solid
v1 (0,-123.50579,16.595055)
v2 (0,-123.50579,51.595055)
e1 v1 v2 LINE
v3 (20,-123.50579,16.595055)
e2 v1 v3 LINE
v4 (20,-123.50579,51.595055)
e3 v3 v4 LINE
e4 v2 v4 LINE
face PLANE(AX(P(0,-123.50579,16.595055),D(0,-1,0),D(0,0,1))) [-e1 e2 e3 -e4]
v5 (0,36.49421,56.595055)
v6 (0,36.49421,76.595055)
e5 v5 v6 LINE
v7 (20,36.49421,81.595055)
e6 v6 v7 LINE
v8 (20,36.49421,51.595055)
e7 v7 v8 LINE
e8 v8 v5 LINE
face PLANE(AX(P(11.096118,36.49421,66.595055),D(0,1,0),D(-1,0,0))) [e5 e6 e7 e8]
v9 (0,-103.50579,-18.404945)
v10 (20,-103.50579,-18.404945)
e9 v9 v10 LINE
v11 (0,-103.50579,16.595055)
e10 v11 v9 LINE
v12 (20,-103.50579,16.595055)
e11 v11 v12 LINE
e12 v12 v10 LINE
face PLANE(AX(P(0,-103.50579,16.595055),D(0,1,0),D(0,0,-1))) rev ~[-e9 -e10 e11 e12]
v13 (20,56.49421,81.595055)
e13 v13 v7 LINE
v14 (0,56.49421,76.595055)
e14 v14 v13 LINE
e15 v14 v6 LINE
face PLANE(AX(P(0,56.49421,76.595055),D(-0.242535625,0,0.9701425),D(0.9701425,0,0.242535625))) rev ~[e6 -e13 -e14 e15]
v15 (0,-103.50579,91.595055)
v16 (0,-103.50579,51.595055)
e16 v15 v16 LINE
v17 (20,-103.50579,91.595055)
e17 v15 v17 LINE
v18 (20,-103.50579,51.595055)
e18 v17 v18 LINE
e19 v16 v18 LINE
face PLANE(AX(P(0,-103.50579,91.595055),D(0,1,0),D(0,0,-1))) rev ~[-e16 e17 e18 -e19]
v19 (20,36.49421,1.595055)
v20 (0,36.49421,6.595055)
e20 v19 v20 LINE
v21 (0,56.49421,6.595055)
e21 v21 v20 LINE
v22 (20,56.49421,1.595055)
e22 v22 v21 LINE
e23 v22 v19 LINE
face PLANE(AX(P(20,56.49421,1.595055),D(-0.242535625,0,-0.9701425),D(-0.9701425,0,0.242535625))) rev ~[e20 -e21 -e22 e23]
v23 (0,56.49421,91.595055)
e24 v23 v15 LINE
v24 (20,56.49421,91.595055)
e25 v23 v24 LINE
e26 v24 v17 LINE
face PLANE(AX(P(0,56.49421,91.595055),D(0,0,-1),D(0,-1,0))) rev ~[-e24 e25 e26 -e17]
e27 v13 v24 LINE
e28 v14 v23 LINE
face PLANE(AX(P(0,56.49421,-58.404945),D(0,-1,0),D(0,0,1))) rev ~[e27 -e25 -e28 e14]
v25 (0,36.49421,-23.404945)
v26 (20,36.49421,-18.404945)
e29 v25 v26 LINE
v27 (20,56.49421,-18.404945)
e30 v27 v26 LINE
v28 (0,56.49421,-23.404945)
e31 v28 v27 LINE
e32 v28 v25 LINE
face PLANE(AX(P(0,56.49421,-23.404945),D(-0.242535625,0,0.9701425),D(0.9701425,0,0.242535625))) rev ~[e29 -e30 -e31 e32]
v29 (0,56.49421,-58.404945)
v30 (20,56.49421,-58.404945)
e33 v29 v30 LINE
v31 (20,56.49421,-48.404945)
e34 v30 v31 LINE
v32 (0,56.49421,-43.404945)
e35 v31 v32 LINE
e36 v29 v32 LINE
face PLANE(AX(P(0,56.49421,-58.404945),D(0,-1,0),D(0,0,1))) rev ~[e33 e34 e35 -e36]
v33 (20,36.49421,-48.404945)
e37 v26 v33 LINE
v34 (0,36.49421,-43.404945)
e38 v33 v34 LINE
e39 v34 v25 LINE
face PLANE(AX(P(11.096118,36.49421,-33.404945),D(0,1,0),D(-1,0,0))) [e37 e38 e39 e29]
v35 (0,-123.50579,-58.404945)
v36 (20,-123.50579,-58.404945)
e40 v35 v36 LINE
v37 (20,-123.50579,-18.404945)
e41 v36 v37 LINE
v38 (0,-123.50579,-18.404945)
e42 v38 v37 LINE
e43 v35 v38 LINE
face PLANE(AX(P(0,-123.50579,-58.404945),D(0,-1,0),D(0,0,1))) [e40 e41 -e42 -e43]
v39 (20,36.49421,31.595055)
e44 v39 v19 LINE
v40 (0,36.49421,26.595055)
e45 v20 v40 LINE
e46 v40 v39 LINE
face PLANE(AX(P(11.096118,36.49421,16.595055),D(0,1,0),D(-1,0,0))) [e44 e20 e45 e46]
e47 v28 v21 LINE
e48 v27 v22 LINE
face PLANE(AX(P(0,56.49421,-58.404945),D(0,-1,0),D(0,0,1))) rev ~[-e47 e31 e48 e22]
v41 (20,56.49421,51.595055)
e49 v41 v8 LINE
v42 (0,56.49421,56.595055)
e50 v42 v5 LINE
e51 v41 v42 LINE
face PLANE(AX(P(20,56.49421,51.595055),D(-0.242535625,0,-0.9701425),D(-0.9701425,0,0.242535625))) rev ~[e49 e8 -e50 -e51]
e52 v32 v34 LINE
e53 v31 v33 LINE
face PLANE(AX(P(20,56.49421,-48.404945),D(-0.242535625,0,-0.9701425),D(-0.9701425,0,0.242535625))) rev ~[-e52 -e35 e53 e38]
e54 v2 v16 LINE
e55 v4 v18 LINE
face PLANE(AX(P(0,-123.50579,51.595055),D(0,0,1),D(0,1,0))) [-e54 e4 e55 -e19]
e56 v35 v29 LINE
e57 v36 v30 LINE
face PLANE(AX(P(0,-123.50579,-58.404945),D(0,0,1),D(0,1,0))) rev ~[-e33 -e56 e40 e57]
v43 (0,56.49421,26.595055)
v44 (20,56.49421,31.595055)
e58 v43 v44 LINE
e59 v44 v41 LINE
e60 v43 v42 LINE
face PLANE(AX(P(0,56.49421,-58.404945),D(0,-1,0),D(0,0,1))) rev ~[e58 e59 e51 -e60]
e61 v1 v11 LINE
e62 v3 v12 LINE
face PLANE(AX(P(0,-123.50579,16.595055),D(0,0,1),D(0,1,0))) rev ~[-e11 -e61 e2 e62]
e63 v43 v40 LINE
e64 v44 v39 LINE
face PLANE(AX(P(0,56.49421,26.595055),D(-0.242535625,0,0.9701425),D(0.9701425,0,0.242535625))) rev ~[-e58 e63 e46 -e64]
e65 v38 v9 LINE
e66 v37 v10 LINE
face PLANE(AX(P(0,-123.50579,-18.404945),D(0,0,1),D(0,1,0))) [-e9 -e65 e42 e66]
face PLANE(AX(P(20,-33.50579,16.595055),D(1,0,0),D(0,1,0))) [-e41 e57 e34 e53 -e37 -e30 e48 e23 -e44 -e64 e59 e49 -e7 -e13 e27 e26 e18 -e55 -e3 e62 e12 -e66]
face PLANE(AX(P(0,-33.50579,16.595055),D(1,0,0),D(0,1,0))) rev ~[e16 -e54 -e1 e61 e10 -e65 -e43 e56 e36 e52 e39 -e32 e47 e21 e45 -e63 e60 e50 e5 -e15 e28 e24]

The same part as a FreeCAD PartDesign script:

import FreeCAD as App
import Part
import Sketcher

V = App.Vector
Q = App.Units.Quantity

doc = App.newDocument("Part")
body = doc.addObject("PartDesign::Body", "Body")

sketch1 = doc.addObject("Sketcher::SketchObject", "Sketch")
body.addObject(sketch1)
sketch1.AttachmentSupport = (doc.YZ_Plane, [""])
sketch1.MapMode = "FlatFace"
sketch1.addGeometry([
    Part.LineSegment(V(-104, 92, 0), V(-104, 52, 0)),
    Part.LineSegment(V(-104, 52, 0), V(-124, 52, 0)),
    Part.LineSegment(V(-124, 52, 0), V(-124, 17, 0)),
    Part.LineSegment(V(-124, 17, 0), V(-104, 17, 0)),
    Part.LineSegment(V(-104, 17, 0), V(-104, -18, 0)),
    Part.LineSegment(V(-104, -18, 0), V(-124, -18, 0)),
    Part.LineSegment(V(-124, -18, 0), V(-124, -58, 0)),
    Part.LineSegment(V(-124, -58, 0), V(56, -58, 0)),
    Part.LineSegment(V(56, -58, 0), V(56, 92, 0)),
    Part.LineSegment(V(56, 92, 0), V(-104, 92, 0)),
], False)
sketch1.addConstraint([
    Sketcher.Constraint("Coincident", 0, 2, 1, 1),
    Sketcher.Constraint("Coincident", 1, 2, 2, 1),
    Sketcher.Constraint("Coincident", 2, 2, 3, 1),
    Sketcher.Constraint("Coincident", 3, 2, 4, 1),
    Sketcher.Constraint("Coincident", 4, 2, 5, 1),
    Sketcher.Constraint("Coincident", 5, 2, 6, 1),
    Sketcher.Constraint("Coincident", 6, 2, 7, 1),
    Sketcher.Constraint("Coincident", 7, 2, 8, 1),
    Sketcher.Constraint("Coincident", 8, 2, 9, 1),
    Sketcher.Constraint("Coincident", 9, 2, 0, 1),
    Sketcher.Constraint("Vertical", 0),
    Sketcher.Constraint("Horizontal", 1),
    Sketcher.Constraint("Vertical", 2),
    Sketcher.Constraint("Horizontal", 3),
    Sketcher.Constraint("Vertical", 4),
    Sketcher.Constraint("Horizontal", 5),
    Sketcher.Constraint("Vertical", 6),
    Sketcher.Constraint("Horizontal", 7),
    Sketcher.Constraint("Vertical", 8),
    Sketcher.Constraint("Horizontal", 9),
    Sketcher.Constraint("Vertical", 0, 2, 3, 2),
    Sketcher.Constraint("Vertical", 2, 2, 5, 2),
    Sketcher.Constraint("Equal", 2, 4),
    Sketcher.Constraint("Equal", 0, 6),
    Sketcher.Constraint("DistanceX", 1, 2, 1, 1, Q("20 mm")),
    Sketcher.Constraint("DistanceX", 7, 1, 7, 2, Q("180 mm")),
    Sketcher.Constraint("DistanceY", 0, 2, 0, 1, Q("40 mm")),
    Sketcher.Constraint("DistanceY", 2, 2, 2, 1, Q("35 mm")),
    Sketcher.Constraint("DistanceX", 0, 2, -1, 1, Q("103.50579 mm")),
    Sketcher.Constraint("DistanceY", -1, 1, 0, 2, Q("51.595055 mm")),
])
pad1 = doc.addObject("PartDesign::Pad", "Pad")
body.addObject(pad1)
pad1.Profile = sketch1
pad1.Length = 20

sketch2 = doc.addObject("Sketcher::SketchObject", "Sketch001")
body.addObject(sketch2)
sketch2.AttachmentSupport = (doc.XZ_Plane, [""])
sketch2.MapMode = "FlatFace"
sketch2.AttachmentOffset = App.Placement(V(0, 0, -56.49421), App.Rotation())
sketch2.addGeometry([
    Part.LineSegment(V(20, 52, 0), V(0, 57, 0)),
    Part.LineSegment(V(0, 57, 0), V(0, 77, 0)),
    Part.LineSegment(V(0, 77, 0), V(20, 82, 0)),
    Part.LineSegment(V(20, 82, 0), V(20, 52, 0)),
    Part.LineSegment(V(0, 7, 0), V(0, 27, 0)),
    Part.LineSegment(V(0, 27, 0), V(20, 32, 0)),
    Part.LineSegment(V(20, 32, 0), V(20, 2, 0)),
    Part.LineSegment(V(20, 2, 0), V(0, 7, 0)),
    Part.LineSegment(V(0, -43, 0), V(0, -23, 0)),
    Part.LineSegment(V(0, -23, 0), V(20, -18, 0)),
    Part.LineSegment(V(20, -18, 0), V(20, -48, 0)),
    Part.LineSegment(V(20, -48, 0), V(0, -43, 0)),
], False)
sketch2.addConstraint([
    Sketcher.Constraint("Coincident", 0, 2, 1, 1),
    Sketcher.Constraint("Coincident", 1, 2, 2, 1),
    Sketcher.Constraint("Coincident", 2, 2, 3, 1),
    Sketcher.Constraint("Coincident", 3, 2, 0, 1),
    Sketcher.Constraint("Coincident", 4, 2, 5, 1),
    Sketcher.Constraint("Coincident", 5, 2, 6, 1),
    Sketcher.Constraint("Coincident", 6, 2, 7, 1),
    Sketcher.Constraint("Coincident", 7, 2, 4, 1),
    Sketcher.Constraint("Coincident", 8, 2, 9, 1),
    Sketcher.Constraint("Coincident", 9, 2, 10, 1),
    Sketcher.Constraint("Coincident", 10, 2, 11, 1),
    Sketcher.Constraint("Coincident", 11, 2, 8, 1),
    Sketcher.Constraint("Vertical", 1),
    Sketcher.Constraint("Vertical", 3),
    Sketcher.Constraint("Vertical", 4),
    Sketcher.Constraint("Vertical", 6),
    Sketcher.Constraint("Vertical", 8),
    Sketcher.Constraint("Vertical", 10),
    Sketcher.Constraint("PointOnObject", 0, 2, -2),
    Sketcher.Constraint("PointOnObject", 4, 2, -2),
    Sketcher.Constraint("PointOnObject", 8, 2, -2),
    Sketcher.Constraint("Parallel", 2, 5),
    Sketcher.Constraint("Parallel", 0, 7),
    Sketcher.Constraint("Parallel", 5, 9),
    Sketcher.Constraint("Parallel", 7, 11),
    Sketcher.Constraint("Vertical", 3, 2, 5, 2),
    Sketcher.Constraint("Vertical", 6, 2, 9, 2),
    Sketcher.Constraint("Equal", 1, 4),
    Sketcher.Constraint("Equal", 4, 8),
    Sketcher.Constraint("Equal", 0, 2),
    Sketcher.Constraint("DistanceY", 1, 1, 1, 2, Q("20 mm")),
    Sketcher.Constraint("DistanceY", 3, 2, 3, 1, Q("30 mm")),
    Sketcher.Constraint("DistanceX", -1, 1, 2, 2, Q("20 mm")),
    Sketcher.Constraint("DistanceY", 4, 2, 0, 2, Q("30 mm")),
    Sketcher.Constraint("DistanceY", 8, 2, 7, 2, Q("30 mm")),
    Sketcher.Constraint("DistanceY", -1, 1, 0, 2, Q("56.595055 mm")),
])
pocket1 = doc.addObject("PartDesign::Pocket", "Pocket")
body.addObject(pocket1)
pocket1.Profile = sketch2
pocket1.Length = 20
pocket1.Reversed = True

doc.recompute()
